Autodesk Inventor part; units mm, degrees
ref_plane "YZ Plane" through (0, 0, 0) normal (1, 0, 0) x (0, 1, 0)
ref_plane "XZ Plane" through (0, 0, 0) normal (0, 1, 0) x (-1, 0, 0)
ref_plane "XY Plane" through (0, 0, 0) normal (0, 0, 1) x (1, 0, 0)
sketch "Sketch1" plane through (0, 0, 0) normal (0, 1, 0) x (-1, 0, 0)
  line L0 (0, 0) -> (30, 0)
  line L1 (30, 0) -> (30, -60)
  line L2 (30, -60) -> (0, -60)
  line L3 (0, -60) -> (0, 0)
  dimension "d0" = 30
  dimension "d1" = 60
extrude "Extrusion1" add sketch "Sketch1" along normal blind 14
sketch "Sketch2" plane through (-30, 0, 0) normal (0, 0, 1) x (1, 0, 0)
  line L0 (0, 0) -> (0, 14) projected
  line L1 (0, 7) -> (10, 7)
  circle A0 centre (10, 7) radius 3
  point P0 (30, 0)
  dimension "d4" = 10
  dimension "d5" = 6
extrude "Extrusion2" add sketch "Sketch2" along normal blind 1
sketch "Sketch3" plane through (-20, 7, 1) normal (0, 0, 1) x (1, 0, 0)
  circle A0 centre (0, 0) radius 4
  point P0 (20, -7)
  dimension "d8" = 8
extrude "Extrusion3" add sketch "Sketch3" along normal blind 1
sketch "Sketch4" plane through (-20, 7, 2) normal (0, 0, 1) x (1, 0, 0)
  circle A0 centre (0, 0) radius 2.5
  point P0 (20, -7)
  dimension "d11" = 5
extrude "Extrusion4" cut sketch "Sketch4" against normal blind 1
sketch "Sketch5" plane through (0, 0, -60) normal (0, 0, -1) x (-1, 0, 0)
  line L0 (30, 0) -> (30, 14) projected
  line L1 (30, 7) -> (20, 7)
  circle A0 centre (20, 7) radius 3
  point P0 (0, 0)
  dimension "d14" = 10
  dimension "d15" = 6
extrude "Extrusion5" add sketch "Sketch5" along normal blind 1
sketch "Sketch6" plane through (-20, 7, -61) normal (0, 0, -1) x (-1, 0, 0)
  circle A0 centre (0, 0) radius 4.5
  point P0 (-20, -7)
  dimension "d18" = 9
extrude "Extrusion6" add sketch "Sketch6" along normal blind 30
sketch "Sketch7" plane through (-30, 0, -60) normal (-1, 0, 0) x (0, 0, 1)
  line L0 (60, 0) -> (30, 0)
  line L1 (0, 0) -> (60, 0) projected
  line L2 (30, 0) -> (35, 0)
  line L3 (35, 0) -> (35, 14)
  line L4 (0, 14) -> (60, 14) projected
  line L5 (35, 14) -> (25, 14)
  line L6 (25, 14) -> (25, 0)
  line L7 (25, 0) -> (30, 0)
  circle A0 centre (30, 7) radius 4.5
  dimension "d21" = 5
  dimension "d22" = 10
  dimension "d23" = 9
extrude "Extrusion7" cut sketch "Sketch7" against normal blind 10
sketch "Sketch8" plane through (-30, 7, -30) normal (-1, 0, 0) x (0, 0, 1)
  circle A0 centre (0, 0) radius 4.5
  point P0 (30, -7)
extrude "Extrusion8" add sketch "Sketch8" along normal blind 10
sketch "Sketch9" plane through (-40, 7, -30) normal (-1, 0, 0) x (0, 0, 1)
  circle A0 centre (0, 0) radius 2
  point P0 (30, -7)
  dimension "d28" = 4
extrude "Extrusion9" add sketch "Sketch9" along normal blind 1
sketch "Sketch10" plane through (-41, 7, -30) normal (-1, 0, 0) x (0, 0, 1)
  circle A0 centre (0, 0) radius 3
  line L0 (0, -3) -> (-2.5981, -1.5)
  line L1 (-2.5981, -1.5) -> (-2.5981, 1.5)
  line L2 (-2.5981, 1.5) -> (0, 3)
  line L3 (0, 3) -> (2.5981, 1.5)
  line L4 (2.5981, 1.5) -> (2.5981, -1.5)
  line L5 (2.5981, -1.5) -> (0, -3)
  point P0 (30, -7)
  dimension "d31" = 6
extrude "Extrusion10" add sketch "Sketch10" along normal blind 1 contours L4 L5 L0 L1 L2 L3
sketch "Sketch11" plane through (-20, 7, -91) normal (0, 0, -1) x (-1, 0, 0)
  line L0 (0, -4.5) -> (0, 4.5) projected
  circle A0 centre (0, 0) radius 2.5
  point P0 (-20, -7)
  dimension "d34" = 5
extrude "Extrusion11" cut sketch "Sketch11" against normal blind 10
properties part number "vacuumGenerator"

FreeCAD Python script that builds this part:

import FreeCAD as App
import Part
import Sketcher
Q = App.Units.Quantity


def add_polygon(sketch, points):
    """Adds a closed chain of lines whose ends are joined by coincident constraints."""
    first, n = sketch.GeometryCount, len(points)
    for a, b in zip(points, points[1:] + points[:1]):
        sketch.addGeometry(Part.LineSegment(App.Vector(*a, 0), App.Vector(*b, 0)), False)
    for i in range(n):
        sketch.addConstraint(Sketcher.Constraint("Coincident", first + i, 2, first + (i + 1) % n, 1))

doc = App.newDocument("Part")
body = doc.addObject("PartDesign::Body", "Body")

sketch1 = body.newObject("Sketcher::SketchObject", "Sketch")
sketch1.AttachmentSupport = (doc.getObject("XZ_Plane"), [""])
sketch1.MapMode = "FlatFace"
add_polygon(sketch1, [(-30, 0), (0, 0), (0, -60), (-30, -60)])
sketch1.addConstraint([
    Sketcher.Constraint("Horizontal", 0),
    Sketcher.Constraint("Vertical", 1),
    Sketcher.Constraint("Horizontal", 2),
    Sketcher.Constraint("Vertical", 3),
    Sketcher.Constraint("Coincident", 0, 2, -1, 1),
    Sketcher.Constraint("DistanceX", 0, 1, 0, 2, Q("30 mm")),
    Sketcher.Constraint("DistanceY", 1, 2, 1, 1, Q("60 mm")),
])
pad1 = body.newObject("PartDesign::Pad", "Pad")
pad1.Profile = sketch1
pad1.Length = 14
pad1.Reversed = True

sketch2 = body.newObject("Sketcher::SketchObject", "Sketch001")
sketch2.AttachmentSupport = (doc.getObject("XY_Plane"), [""])
sketch2.MapMode = "FlatFace"
sketch2.addGeometry(Part.Circle(App.Vector(-20, 7, 0), App.Vector(0, 0, 1), 3), False)
sketch2.addConstraint([
    Sketcher.Constraint("Diameter", 0, Q("6 mm")),
    Sketcher.Constraint("DistanceX", 0, 3, -1, 1, Q("20 mm")),
    Sketcher.Constraint("DistanceY", -1, 1, 0, 3, Q("7 mm")),
])
pad2 = body.newObject("PartDesign::Pad", "Pad001")
pad2.Profile = sketch2
pad2.Length = 1

sketch3 = body.newObject("Sketcher::SketchObject", "Sketch002")
sketch3.AttachmentSupport = (doc.getObject("XY_Plane"), [""])
sketch3.MapMode = "FlatFace"
sketch3.AttachmentOffset = App.Placement(App.Vector(0, 0, 1), App.Rotation())
sketch3.addGeometry(Part.Circle(App.Vector(-20, 7, 0), App.Vector(0, 0, 1), 4), False)
sketch3.addConstraint([
    Sketcher.Constraint("Diameter", 0, Q("8 mm")),
    Sketcher.Constraint("DistanceX", 0, 3, -1, 1, Q("20 mm")),
    Sketcher.Constraint("DistanceY", -1, 1, 0, 3, Q("7 mm")),
])
pad3 = body.newObject("PartDesign::Pad", "Pad002")
pad3.Profile = sketch3
pad3.Length = 1

sketch4 = body.newObject("Sketcher::SketchObject", "Sketch003")
sketch4.AttachmentSupport = (doc.getObject("XY_Plane"), [""])
sketch4.MapMode = "FlatFace"
sketch4.AttachmentOffset = App.Placement(App.Vector(0, 0, 2), App.Rotation())
sketch4.addGeometry(Part.Circle(App.Vector(-20, 7, 0), App.Vector(0, 0, 1), 2.5), False)
sketch4.addConstraint([
    Sketcher.Constraint("Diameter", 0, Q("5 mm")),
    Sketcher.Constraint("DistanceX", 0, 3, -1, 1, Q("20 mm")),
    Sketcher.Constraint("DistanceY", -1, 1, 0, 3, Q("7 mm")),
])
pocket1 = body.newObject("PartDesign::Pocket", "Pocket")
pocket1.Profile = sketch4
pocket1.Length = 1

sketch5 = body.newObject("Sketcher::SketchObject", "Sketch004")
sketch5.AttachmentSupport = (doc.getObject("XY_Plane"), [""])
sketch5.MapMode = "FlatFace"
sketch5.AttachmentOffset = App.Placement(App.Vector(0, 0, -60), App.Rotation())
sketch5.addGeometry(Part.Circle(App.Vector(-20, 7, 0), App.Vector(0, 0, 1), 3), False)
sketch5.addConstraint([
    Sketcher.Constraint("Diameter", 0, Q("6 mm")),
    Sketcher.Constraint("DistanceX", 0, 3, -1, 1, Q("20 mm")),
    Sketcher.Constraint("DistanceY", -1, 1, 0, 3, Q("7 mm")),
])
pad4 = body.newObject("PartDesign::Pad", "Pad003")
pad4.Profile = sketch5
pad4.Length = 1
pad4.Reversed = True

sketch6 = body.newObject("Sketcher::SketchObject", "Sketch005")
sketch6.AttachmentSupport = (doc.getObject("XY_Plane"), [""])
sketch6.MapMode = "FlatFace"
sketch6.AttachmentOffset = App.Placement(App.Vector(0, 0, -61), App.Rotation())
sketch6.addGeometry(Part.Circle(App.Vector(-20, 7, 0), App.Vector(0, 0, 1), 4.5), False)
sketch6.addConstraint([
    Sketcher.Constraint("Diameter", 0, Q("9 mm")),
    Sketcher.Constraint("DistanceX", 0, 3, -1, 1, Q("20 mm")),
    Sketcher.Constraint("DistanceY", -1, 1, 0, 3, Q("7 mm")),
])
pad5 = body.newObject("PartDesign::Pad", "Pad004")
pad5.Profile = sketch6
pad5.Length = 30
pad5.Reversed = True

sketch7 = body.newObject("Sketcher::SketchObject", "Sketch006")
sketch7.AttachmentSupport = (doc.getObject("YZ_Plane"), [""])
sketch7.MapMode = "FlatFace"
sketch7.AttachmentOffset = App.Placement(App.Vector(0, 0, -30), App.Rotation())
add_polygon(sketch7, [(0, -35), (0, -25), (14, -25), (14, -35)])
sketch7.addGeometry(Part.Circle(App.Vector(7, -30, 0), App.Vector(0, 0, 1), 4.5), False)
sketch7.addConstraint([
    Sketcher.Constraint("Vertical", 0),
    Sketcher.Constraint("Horizontal", 1),
    Sketcher.Constraint("Vertical", 2),
    Sketcher.Constraint("Horizontal", 3),
    Sketcher.Constraint("PointOnObject", 0, 2, -2),
    Sketcher.Constraint("Diameter", 4, Q("9 mm")),
    Sketcher.Constraint("DistanceY", 0, 1, 0, 2, Q("10 mm")),
    Sketcher.Constraint("DistanceY", 4, 3, 0, 2, Q("5 mm")),
    Sketcher.Constraint("DistanceX", 1, 1, 1, 2, Q("14 mm")),
    Sketcher.Constraint("DistanceX", -1, 1, 4, 3, Q("7 mm")),
    Sketcher.Constraint("DistanceY", 4, 3, -1, 1, Q("30 mm")),
])
pocket2 = body.newObject("PartDesign::Pocket", "Pocket001")
pocket2.Profile = sketch7
pocket2.Length = 10
pocket2.Reversed = True

sketch8 = body.newObject("Sketcher::SketchObject", "Sketch007")
sketch8.AttachmentSupport = (doc.getObject("YZ_Plane"), [""])
sketch8.MapMode = "FlatFace"
sketch8.AttachmentOffset = App.Placement(App.Vector(0, 0, -30), App.Rotation())
sketch8.addGeometry(Part.Circle(App.Vector(7, -30, 0), App.Vector(0, 0, 1), 4.5), False)
sketch8.addConstraint([
    Sketcher.Constraint("Diameter", 0, Q("9 mm")),
    Sketcher.Constraint("DistanceX", -1, 1, 0, 3, Q("7 mm")),
    Sketcher.Constraint("DistanceY", 0, 3, -1, 1, Q("30 mm")),
])
pad6 = body.newObject("PartDesign::Pad", "Pad005")
pad6.Profile = sketch8
pad6.Length = 10
pad6.Reversed = True

sketch9 = body.newObject("Sketcher::SketchObject", "Sketch008")
sketch9.AttachmentSupport = (doc.getObject("YZ_Plane"), [""])
sketch9.MapMode = "FlatFace"
sketch9.AttachmentOffset = App.Placement(App.Vector(0, 0, -40), App.Rotation())
sketch9.addGeometry(Part.Circle(App.Vector(7, -30, 0), App.Vector(0, 0, 1), 2), False)
sketch9.addConstraint([
    Sketcher.Constraint("Diameter", 0, Q("4 mm")),
    Sketcher.Constraint("DistanceX", -1, 1, 0, 3, Q("7 mm")),
    Sketcher.Constraint("DistanceY", 0, 3, -1, 1, Q("30 mm")),
])
pad7 = body.newObject("PartDesign::Pad", "Pad006")
pad7.Profile = sketch9
pad7.Length = 1
pad7.Reversed = True

sketch10 = body.newObject("Sketcher::SketchObject", "Sketch009")
sketch10.AttachmentSupport = (doc.getObject("YZ_Plane"), [""])
sketch10.MapMode = "FlatFace"
sketch10.AttachmentOffset = App.Placement(App.Vector(0, 0, -41), App.Rotation())
add_polygon(sketch10, [(5.5, -27.4), (8.5, -27.4), (10, -30), (8.5, -32.6), (5.5, -32.6), (4, -30)])
sketch10.addConstraint([
    Sketcher.Constraint("Horizontal", 0),
    Sketcher.Constraint("Horizontal", 3),
    Sketcher.Constraint("Parallel", 1, 4),
    Sketcher.Constraint("Parallel", 2, 5),
    Sketcher.Constraint("Horizontal", 1, 2, 4, 2),
    Sketcher.Constraint("Vertical", 0, 2, 2, 2),
    Sketcher.Constraint("Vertical", 3, 2, 5, 2),
    Sketcher.Constraint("DistanceX", 4, 2, 1, 2, Q("6 mm")),
    Sketcher.Constraint("DistanceX", 0, 1, 0, 2, Q("3 mm")),
    Sketcher.Constraint("Angle", 1, Q("-60.0002 deg")),
    Sketcher.Constraint("DistanceX", -1, 1, 1, 2, Q("10 mm")),
    Sketcher.Constraint("DistanceY", 1, 2, -1, 1, Q("30 mm")),
])
pad8 = body.newObject("PartDesign::Pad", "Pad007")
pad8.Profile = sketch10
pad8.Length = 1
pad8.Reversed = True

sketch11 = body.newObject("Sketcher::SketchObject", "Sketch010")
sketch11.AttachmentSupport = (doc.getObject("XY_Plane"), [""])
sketch11.MapMode = "FlatFace"
sketch11.AttachmentOffset = App.Placement(App.Vector(0, 0, -91), App.Rotation())
sketch11.addGeometry(Part.Circle(App.Vector(-20, 7, 0), App.Vector(0, 0, 1), 2.5), False)
sketch11.addConstraint([
    Sketcher.Constraint("Diameter", 0, Q("5 mm")),
    Sketcher.Constraint("DistanceX", 0, 3, -1, 1, Q("20 mm")),
    Sketcher.Constraint("DistanceY", -1, 1, 0, 3, Q("7 mm")),
])
pocket3 = body.newObject("PartDesign::Pocket", "Pocket002")
pocket3.Profile = sketch11
pocket3.Length = 10
pocket3.Reversed = True

doc.recompute()
